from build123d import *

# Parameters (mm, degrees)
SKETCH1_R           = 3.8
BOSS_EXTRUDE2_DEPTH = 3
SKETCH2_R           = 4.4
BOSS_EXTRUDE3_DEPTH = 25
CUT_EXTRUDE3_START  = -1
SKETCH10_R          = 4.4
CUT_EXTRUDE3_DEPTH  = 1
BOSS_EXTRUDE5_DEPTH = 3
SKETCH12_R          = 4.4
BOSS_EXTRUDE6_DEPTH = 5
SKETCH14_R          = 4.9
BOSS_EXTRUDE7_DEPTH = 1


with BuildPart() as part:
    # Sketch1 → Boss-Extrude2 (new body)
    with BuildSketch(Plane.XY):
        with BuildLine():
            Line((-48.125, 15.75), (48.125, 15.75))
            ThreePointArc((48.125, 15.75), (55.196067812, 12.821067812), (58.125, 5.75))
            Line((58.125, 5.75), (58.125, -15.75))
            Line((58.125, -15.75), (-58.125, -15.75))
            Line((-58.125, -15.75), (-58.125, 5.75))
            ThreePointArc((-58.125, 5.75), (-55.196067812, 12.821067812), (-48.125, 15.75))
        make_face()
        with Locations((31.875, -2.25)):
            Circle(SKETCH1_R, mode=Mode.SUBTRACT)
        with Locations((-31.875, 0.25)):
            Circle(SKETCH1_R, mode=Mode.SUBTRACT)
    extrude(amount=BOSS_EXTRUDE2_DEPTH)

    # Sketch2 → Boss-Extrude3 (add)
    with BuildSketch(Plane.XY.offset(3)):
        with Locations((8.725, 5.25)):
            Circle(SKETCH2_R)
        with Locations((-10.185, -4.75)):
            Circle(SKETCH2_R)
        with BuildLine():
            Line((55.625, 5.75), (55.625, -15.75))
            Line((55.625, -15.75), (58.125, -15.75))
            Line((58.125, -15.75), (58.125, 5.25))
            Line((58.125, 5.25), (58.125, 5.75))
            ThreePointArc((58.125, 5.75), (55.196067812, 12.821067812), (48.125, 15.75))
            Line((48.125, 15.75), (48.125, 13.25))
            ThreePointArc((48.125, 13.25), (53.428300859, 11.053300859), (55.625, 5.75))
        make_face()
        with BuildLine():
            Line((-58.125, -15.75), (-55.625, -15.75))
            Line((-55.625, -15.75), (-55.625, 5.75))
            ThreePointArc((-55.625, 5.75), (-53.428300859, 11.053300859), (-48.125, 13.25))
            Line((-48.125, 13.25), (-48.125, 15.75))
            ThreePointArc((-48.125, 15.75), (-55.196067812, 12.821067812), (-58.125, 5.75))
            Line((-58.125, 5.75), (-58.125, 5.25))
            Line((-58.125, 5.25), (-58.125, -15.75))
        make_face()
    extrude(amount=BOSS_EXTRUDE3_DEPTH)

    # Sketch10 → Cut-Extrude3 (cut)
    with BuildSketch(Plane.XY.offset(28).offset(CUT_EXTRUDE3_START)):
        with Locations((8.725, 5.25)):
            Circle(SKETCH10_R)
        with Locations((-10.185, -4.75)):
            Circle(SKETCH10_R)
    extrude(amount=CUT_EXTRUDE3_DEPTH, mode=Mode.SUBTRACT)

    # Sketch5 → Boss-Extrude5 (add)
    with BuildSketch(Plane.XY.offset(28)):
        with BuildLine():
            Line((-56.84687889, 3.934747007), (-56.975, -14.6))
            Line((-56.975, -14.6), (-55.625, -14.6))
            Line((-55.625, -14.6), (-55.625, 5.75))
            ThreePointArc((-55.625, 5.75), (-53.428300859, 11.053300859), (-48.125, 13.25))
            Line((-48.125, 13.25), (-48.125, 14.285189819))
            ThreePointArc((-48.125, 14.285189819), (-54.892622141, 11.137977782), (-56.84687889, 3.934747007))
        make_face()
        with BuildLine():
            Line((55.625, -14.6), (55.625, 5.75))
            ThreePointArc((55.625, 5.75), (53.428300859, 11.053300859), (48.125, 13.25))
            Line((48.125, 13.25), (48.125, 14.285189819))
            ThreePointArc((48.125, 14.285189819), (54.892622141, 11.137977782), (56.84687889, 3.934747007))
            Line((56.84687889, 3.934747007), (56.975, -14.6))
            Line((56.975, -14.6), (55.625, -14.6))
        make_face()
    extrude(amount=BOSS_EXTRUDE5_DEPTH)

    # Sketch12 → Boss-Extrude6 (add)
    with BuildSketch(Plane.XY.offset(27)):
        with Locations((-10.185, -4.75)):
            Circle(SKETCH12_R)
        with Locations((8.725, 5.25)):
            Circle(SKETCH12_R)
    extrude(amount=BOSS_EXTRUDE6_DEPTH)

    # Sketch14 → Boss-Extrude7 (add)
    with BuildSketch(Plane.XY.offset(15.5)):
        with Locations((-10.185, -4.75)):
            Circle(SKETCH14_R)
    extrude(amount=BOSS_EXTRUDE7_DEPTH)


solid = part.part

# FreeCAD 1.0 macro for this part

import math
import FreeCAD as App
import Part
import Sketcher

V = App.Vector
Q = App.Units.Quantity

doc = App.newDocument("Part")
params = doc.addObject("Spreadsheet::Sheet", "Params")
for row, (alias, value) in enumerate([
    ("sketch1_radius", "10 mm"),
    ("sketch1_diameter", "7.6 mm"),
    ("sketch1_height", "21.5 mm"),
    ("sketch1_width", "96.25 mm"),
    ("pad1_length", "3 mm"),
    ("sketch2_radius", "10 mm"),
    ("sketch2_diameter", "8.8 mm"),
    ("sketch2_radius2", "7.5 mm"),
    ("sketch2_height", "21.5 mm"),
    ("pad2_length", "25 mm"),
    ("sketch3_diameter", "8.8 mm"),
    ("pocket1_length", "1 mm"),
    ("sketch4_radius", "7.5 mm"),
    ("sketch4_radius2", "8.85 mm"),
    ("sketch4_width", "1.35 mm"),
    ("sketch4_height", "20.35 mm"),
    ("pad3_length", "3 mm"),
    ("sketch5_diameter", "8.8 mm"),
    ("pad4_length", "5 mm"),
    ("sketch6_diameter", "9.8 mm"),
    ("pad5_length", "1 mm"),
], start=1):
    params.set(f"A{row}", alias)
    params.set(f"B{row}", "=" + value)
    params.setAlias(f"B{row}", alias)

body = doc.addObject("PartDesign::Body", "Body")

# Sketch on XY plane
sketch1 = body.newObject("Sketcher::SketchObject", "Sketch")
sketch1.AttachmentSupport = (doc.getObject("XY_Plane"), [""])
sketch1.MapMode = "FlatFace"
sketch1.addGeometry(Part.LineSegment(V(48.1, 15.8, 0), V(-48.1, 15.8, 0)), False)
sketch1.addGeometry(Part.ArcOfCircle(Part.Circle(V(-48.1, 5.8, 0), V(0, 0, 1), 10), math.radians(90), math.radians(180)), False)
sketch1.addGeometry(Part.LineSegment(V(-58.1, 5.8, 0), V(-58.1, -15.8, 0)), False)
sketch1.addGeometry(Part.LineSegment(V(-58.1, -15.8, 0), V(58.1, -15.8, 0)), False)
sketch1.addGeometry(Part.LineSegment(V(58.1, -15.8, 0), V(58.1, 5.8, 0)), False)
sketch1.addGeometry(Part.ArcOfCircle(Part.Circle(V(48.1, 5.8, 0), V(0, 0, 1), 10), math.radians(0), math.radians(90)), False)
sketch1.addGeometry(Part.Circle(V(31.9, -2.2, 0), V(0, 0, 1), 3.8), False)
sketch1.addGeometry(Part.Circle(V(-31.9, 0.2, 0), V(0, 0, 1), 3.8), False)
sketch1.addConstraint(Sketcher.Constraint("Tangent", 0, 2, 1, 1))
sketch1.addConstraint(Sketcher.Constraint("Tangent", 1, 2, 2, 1))
sketch1.addConstraint(Sketcher.Constraint("Coincident", 2, 2, 3, 1))
sketch1.addConstraint(Sketcher.Constraint("Coincident", 3, 2, 4, 1))
sketch1.addConstraint(Sketcher.Constraint("Tangent", 4, 2, 5, 1))
sketch1.addConstraint(Sketcher.Constraint("Tangent", 5, 2, 0, 1))
sketch1.addConstraint(Sketcher.Constraint("Horizontal", 0))
sketch1.addConstraint(Sketcher.Constraint("Vertical", 2))
sketch1.addConstraint(Sketcher.Constraint("Horizontal", 3))
sketch1.addConstraint(Sketcher.Constraint("Vertical", 4))
sketch1.addConstraint(Sketcher.Constraint("Equal", 1, 5))
sketch1.addConstraint(Sketcher.Constraint("Equal", 6, 7))
sketch1.addConstraint(Sketcher.Constraint("Radius", 1, Q("10 mm")))
sketch1.addConstraint(Sketcher.Constraint("Diameter", 6, Q("7.6 mm")))
sketch1.addConstraint(Sketcher.Constraint("DistanceY", 2, 2, 2, 1, Q("21.5 mm")))
sketch1.addConstraint(Sketcher.Constraint("DistanceY", 6, 3, 5, 3, Q("8 mm")))
sketch1.addConstraint(Sketcher.Constraint("DistanceX", 1, 3, 6, 3, Q("80 mm")))
sketch1.addConstraint(Sketcher.Constraint("DistanceX", 7, 3, 5, 3, Q("80 mm")))
sketch1.addConstraint(Sketcher.Constraint("DistanceY", 2, 2, 7, 3, Q("16 mm")))
sketch1.addConstraint(Sketcher.Constraint("DistanceX", 0, 2, 0, 1, Q("96.25 mm")))
sketch1.addConstraint(Sketcher.Constraint("DistanceY", -1, 1, 1, 3, Q("5.75 mm")))
sketch1.addConstraint(Sketcher.Constraint("DistanceX", 1, 3, -1, 1, Q("48.125 mm")))
sketch1.setExpression("Constraints[12]", "Params.sketch1_radius")
sketch1.setExpression("Constraints[13]", "Params.sketch1_diameter")
sketch1.setExpression("Constraints[14]", "Params.sketch1_height")
sketch1.setExpression("Constraints[19]", "Params.sketch1_width")
pad1 = body.newObject("PartDesign::Pad", "Pad")
pad1.Profile = sketch1
pad1.setExpression("Length", "Params.pad1_length")

# Sketch on XY plane
sketch2 = body.newObject("Sketcher::SketchObject", "Sketch001")
sketch2.AttachmentSupport = (doc.getObject("XY_Plane"), [""])
sketch2.MapMode = "FlatFace"
sketch2.AttachmentOffset = App.Placement(V(0, 0, 3), App.Rotation())
sketch2.addGeometry(Part.Circle(V(8.7, 5.2, 0), V(0, 0, 1), 4.4), False)
sketch2.addGeometry(Part.Circle(V(-10.2, -4.8, 0), V(0, 0, 1), 4.4), False)
sketch2.addGeometry(Part.LineSegment(V(55.6, 5.8, 0), V(55.6, -15.8, 0)), False)
sketch2.addGeometry(Part.LineSegment(V(55.6, -15.8, 0), V(58.1, -15.8, 0)), False)
sketch2.addGeometry(Part.LineSegment(V(58.1, -15.8, 0), V(58.1, 5.8, 0)), False)
sketch2.addGeometry(Part.ArcOfCircle(Part.Circle(V(48.1, 5.8, 0), V(0, 0, 1), 10), math.radians(0), math.radians(90)), False)
sketch2.addGeometry(Part.LineSegment(V(48.1, 15.8, 0), V(48.1, 13.2, 0)), False)
sketch2.addGeometry(Part.ArcOfCircle(Part.Circle(V(48.1, 5.8, 0), V(0, 0, 1), 7.5), math.radians(0), math.radians(90)), False)
sketch2.addGeometry(Part.LineSegment(V(-58.1, -15.8, 0), V(-55.6, -15.8, 0)), False)
sketch2.addGeometry(Part.LineSegment(V(-55.6, -15.8, 0), V(-55.6, 5.8, 0)), False)
sketch2.addGeometry(Part.ArcOfCircle(Part.Circle(V(-48.1, 5.8, 0), V(0, 0, 1), 7.5), math.radians(90), math.radians(180)), False)
sketch2.addGeometry(Part.LineSegment(V(-48.1, 13.2, 0), V(-48.1, 15.8, 0)), False)
sketch2.addGeometry(Part.ArcOfCircle(Part.Circle(V(-48.1, 5.8, 0), V(0, 0, 1), 10), math.radians(90), math.radians(180)), False)
sketch2.addGeometry(Part.LineSegment(V(-58.1, 5.8, 0), V(-58.1, -15.8, 0)), False)
sketch2.addConstraint(Sketcher.Constraint("Coincident", 2, 2, 3, 1))
sketch2.addConstraint(Sketcher.Constraint("Coincident", 3, 2, 4, 1))
sketch2.addConstraint(Sketcher.Constraint("Tangent", 4, 2, 5, 1))
sketch2.addConstraint(Sketcher.Constraint("Coincident", 5, 2, 6, 1))
sketch2.addConstraint(Sketcher.Constraint("Coincident", 6, 2, 7, 2))
sketch2.addConstraint(Sketcher.Constraint("Tangent", 7, 1, 2, 1))
sketch2.addConstraint(Sketcher.Constraint("Coincident", 8, 2, 9, 1))
sketch2.addConstraint(Sketcher.Constraint("Tangent", 9, 2, 10, 2))
sketch2.addConstraint(Sketcher.Constraint("Coincident", 10, 1, 11, 1))
sketch2.addConstraint(Sketcher.Constraint("Coincident", 11, 2, 12, 1))
sketch2.addConstraint(Sketcher.Constraint("Tangent", 12, 2, 13, 1))
sketch2.addConstraint(Sketcher.Constraint("Coincident", 13, 2, 8, 1))
sketch2.addConstraint(Sketcher.Constraint("Vertical", 2))
sketch2.addConstraint(Sketcher.Constraint("Horizontal", 3))
sketch2.addConstraint(Sketcher.Constraint("Vertical", 4))
sketch2.addConstraint(Sketcher.Constraint("Vertical", 6))
sketch2.addConstraint(Sketcher.Constraint("Horizontal", 8))
sketch2.addConstraint(Sketcher.Constraint("Vertical", 9))
sketch2.addConstraint(Sketcher.Constraint("Vertical", 11))
sketch2.addConstraint(Sketcher.Constraint("Vertical", 13))
sketch2.addConstraint(Sketcher.Constraint("Coincident", 7, 3, 5, 3))
sketch2.addConstraint(Sketcher.Constraint("Coincident", 12, 3, 10, 3))
sketch2.addConstraint(Sketcher.Constraint("Equal", 0, 1))
sketch2.addConstraint(Sketcher.Constraint("Equal", 7, 10))
sketch2.addConstraint(Sketcher.Constraint("Equal", 5, 12))
sketch2.addConstraint(Sketcher.Constraint("Symmetric", 5, 3, 10, 3, -2))
sketch2.addConstraint(Sketcher.Constraint("Horizontal", 3, 2, 8, 2))
sketch2.addConstraint(Sketcher.Constraint("Vertical", 7, 3, 5, 2))
sketch2.addConstraint(Sketcher.Constraint("Vertical", 12, 3, 10, 1))
sketch2.addConstraint(Sketcher.Constraint("Radius", 5, Q("10 mm")))
sketch2.addConstraint(Sketcher.Constraint("Diameter", 0, Q("8.8 mm")))
sketch2.addConstraint(Sketcher.Constraint("Radius", 7, Q("7.5 mm")))
sketch2.addConstraint(Sketcher.Constraint("DistanceY", 2, 2, 2, 1, Q("21.5 mm")))
sketch2.addConstraint(Sketcher.Constraint("DistanceY", 1, 3, 0, 3, Q("10 mm")))
sketch2.addConstraint(Sketcher.Constraint("DistanceY", 2, 2, 0, 3, Q("21 mm")))
sketch2.addConstraint(Sketcher.Constraint("DistanceX", 0, 3, 5, 3, Q("39.4 mm")))
sketch2.addConstraint(Sketcher.Constraint("DistanceY", -1, 1, 0, 3, Q("5.25 mm")))
sketch2.addConstraint(Sketcher.Constraint("DistanceX", 1, 3, 0, 3, Q("18.91 mm")))
sketch2.addConstraint(Sketcher.Constraint("DistanceX", 10, 3, 1, 3, Q("37.94 mm")))
sketch2.setExpression("Constraints[29]", "Params.sketch2_radius")
sketch2.setExpression("Constraints[30]", "Params.sketch2_diameter")
sketch2.setExpression("Constraints[31]", "Params.sketch2_radius2")
sketch2.setExpression("Constraints[32]", "Params.sketch2_height")
pad2 = body.newObject("PartDesign::Pad", "Pad001")
pad2.Profile = sketch2
pad2.setExpression("Length", "Params.pad2_length")

# Sketch on XY plane
sketch3 = body.newObject("Sketcher::SketchObject", "Sketch002")
sketch3.AttachmentSupport = (doc.getObject("XY_Plane"), [""])
sketch3.MapMode = "FlatFace"
sketch3.AttachmentOffset = App.Placement(V(0, 0, 27), App.Rotation())
sketch3.addGeometry(Part.Circle(V(8.7, 5.2, 0), V(0, 0, 1), 4.4), False)
sketch3.addGeometry(Part.Circle(V(-10.2, -4.8, 0), V(0, 0, 1), 4.4), False)
sketch3.addConstraint(Sketcher.Constraint("Equal", 0, 1))
sketch3.addConstraint(Sketcher.Constraint("Diameter", 0, Q("8.8 mm")))
sketch3.addConstraint(Sketcher.Constraint("DistanceY", 1, 3, 0, 3, Q("10 mm")))
sketch3.addConstraint(Sketcher.Constraint("DistanceY", -1, 1, 0, 3, Q("5.25 mm")))
sketch3.addConstraint(Sketcher.Constraint("DistanceX", 1, 3, 0, 3, Q("18.91 mm")))
sketch3.addConstraint(Sketcher.Constraint("DistanceX", -1, 1, 0, 3, Q("8.725 mm")))
sketch3.setExpression("Constraints[1]", "Params.sketch3_diameter")
pocket1 = body.newObject("PartDesign::Pocket", "Pocket")
pocket1.Profile = sketch3
pocket1.setExpression("Length", "Params.pocket1_length")
pocket1.Reversed = True

# Sketch on XY plane
sketch4 = body.newObject("Sketcher::SketchObject", "Sketch003")
sketch4.AttachmentSupport = (doc.getObject("XY_Plane"), [""])
sketch4.MapMode = "FlatFace"
sketch4.AttachmentOffset = App.Placement(V(0, 0, 28), App.Rotation())
sketch4.addGeometry(Part.LineSegment(V(-56.8, 3.9, 0), V(-57, -14.6, 0)), False)
sketch4.addGeometry(Part.LineSegment(V(-57, -14.6, 0), V(-55.6, -14.6, 0)), False)
sketch4.addGeometry(Part.LineSegment(V(-55.6, -14.6, 0), V(-55.6, 5.8, 0)), False)
sketch4.addGeometry(Part.ArcOfCircle(Part.Circle(V(-48.1, 5.8, 0), V(0, 0, 1), 7.5), math.radians(90), math.radians(180)), False)
sketch4.addGeometry(Part.LineSegment(V(-48.1, 13.2, 0), V(-48.1, 14.3, 0)), False)
sketch4.addGeometry(Part.ArcOfCircle(Part.Circle(V(-48.1, 5.4, 0), V(0, 0, 1), 8.9), math.radians(90), math.radians(190)), False)
sketch4.addGeometry(Part.LineSegment(V(55.6, 5.8, 0), V(55.6, -14.6, 0)), False)
sketch4.addGeometry(Part.LineSegment(V(55.6, -14.6, 0), V(57, -14.6, 0)), False)
sketch4.addGeometry(Part.LineSegment(V(57, -14.6, 0), V(56.8, 3.9, 0)), False)
sketch4.addGeometry(Part.ArcOfCircle(Part.Circle(V(48.1, 5.4, 0), V(0, 0, 1), 8.9), math.radians(-10), math.radians(90)), False)
sketch4.addGeometry(Part.LineSegment(V(48.1, 14.3, 0), V(48.1, 13.2, 0)), False)
sketch4.addGeometry(Part.ArcOfCircle(Part.Circle(V(48.1, 5.8, 0), V(0, 0, 1), 7.5), math.radians(0), math.radians(90)), False)
sketch4.addConstraint(Sketcher.Constraint("Coincident", 0, 2, 1, 1))
sketch4.addConstraint(Sketcher.Constraint("Coincident", 1, 2, 2, 1))
sketch4.addConstraint(Sketcher.Constraint("Tangent", 2, 2, 3, 2))
sketch4.addConstraint(Sketcher.Constraint("Coincident", 3, 1, 4, 1))
sketch4.addConstraint(Sketcher.Constraint("Coincident", 4, 2, 5, 1))
sketch4.addConstraint(Sketcher.Constraint("Coincident", 5, 2, 0, 1))
sketch4.addConstraint(Sketcher.Constraint("Coincident", 6, 2, 7, 1))
sketch4.addConstraint(Sketcher.Constraint("Coincident", 7, 2, 8, 1))
sketch4.addConstraint(Sketcher.Constraint("Coincident", 8, 2, 9, 1))
sketch4.addConstraint(Sketcher.Constraint("Coincident", 9, 2, 10, 1))
sketch4.addConstraint(Sketcher.Constraint("Coincident", 10, 2, 11, 2))
sketch4.addConstraint(Sketcher.Constraint("Tangent", 11, 1, 6, 1))
sketch4.addConstraint(Sketcher.Constraint("Horizontal", 1))
sketch4.addConstraint(Sketcher.Constraint("Vertical", 2))
sketch4.addConstraint(Sketcher.Constraint("Vertical", 4))
sketch4.addConstraint(Sketcher.Constraint("Vertical", 6))
sketch4.addConstraint(Sketcher.Constraint("Horizontal", 7))
sketch4.addConstraint(Sketcher.Constraint("Vertical", 10))
sketch4.addConstraint(Sketcher.Constraint("Equal", 5, 9))
sketch4.addConstraint(Sketcher.Constraint("Equal", 3, 11))
sketch4.addConstraint(Sketcher.Constraint("Symmetric", 5, 3, 9, 3, -2))
sketch4.addConstraint(Sketcher.Constraint("Symmetric", 3, 3, 11, 3, -2))
sketch4.addConstraint(Sketcher.Constraint("Symmetric", 0, 2, 7, 2, -2))
sketch4.addConstraint(Sketcher.Constraint("Horizontal", 5, 2, 8, 2))
sketch4.addConstraint(Sketcher.Constraint("Vertical", 3, 3, 5, 3))
sketch4.addConstraint(Sketcher.Constraint("Vertical", 5, 3, 3, 1))
sketch4.addConstraint(Sketcher.Constraint("Vertical", 11, 3, 9, 2))
sketch4.addConstraint(Sketcher.Constraint("Radius", 3, Q("7.5 mm")))
sketch4.addConstraint(Sketcher.Constraint("Radius", 5, Q("8.85 mm")))
sketch4.addConstraint(Sketcher.Constraint("DistanceX", 1, 1, 1, 2, Q("1.35 mm")))
sketch4.addConstraint(Sketcher.Constraint("DistanceY", 2, 1, 2, 2, Q("20.35 mm")))
sketch4.addConstraint(Sketcher.Constraint("DistanceY", 0, 2, -1, 1, Q("14.6 mm")))
sketch4.addConstraint(Sketcher.Constraint("DistanceX", 0, 2, 9, 3, Q("105.1 mm")))
sketch4.addConstraint(Sketcher.Constraint("DistanceY", 4, 1, 4, 2, Q("1.03519 mm")))
sketch4.addConstraint(Sketcher.Constraint("Distance", 0, Q("18.53519 mm")))
sketch4.setExpression("Constraints[27]", "Params.sketch4_radius")
sketch4.setExpression("Constraints[28]", "Params.sketch4_radius2")
sketch4.setExpression("Constraints[29]", "Params.sketch4_width")
sketch4.setExpression("Constraints[30]", "Params.sketch4_height")
pad3 = body.newObject("PartDesign::Pad", "Pad002")
pad3.Profile = sketch4
pad3.setExpression("Length", "Params.pad3_length")

# Sketch on XY plane
sketch5 = body.newObject("Sketcher::SketchObject", "Sketch004")
sketch5.AttachmentSupport = (doc.getObject("XY_Plane"), [""])
sketch5.MapMode = "FlatFace"
sketch5.AttachmentOffset = App.Placement(V(0, 0, 27), App.Rotation())
sketch5.addGeometry(Part.Circle(V(-10.2, -4.8, 0), V(0, 0, 1), 4.4), False)
sketch5.addGeometry(Part.Circle(V(8.7, 5.2, 0), V(0, 0, 1), 4.4), False)
sketch5.addConstraint(Sketcher.Constraint("Equal", 0, 1))
sketch5.addConstraint(Sketcher.Constraint("Diameter", 0, Q("8.8 mm")))
sketch5.addConstraint(Sketcher.Constraint("DistanceY", 0, 3, 1, 3, Q("10 mm")))
sketch5.addConstraint(Sketcher.Constraint("DistanceY", 0, 3, -1, 1, Q("4.75 mm")))
sketch5.addConstraint(Sketcher.Constraint("DistanceX", 0, 3, 1, 3, Q("18.91 mm")))
sketch5.addConstraint(Sketcher.Constraint("DistanceX", 0, 3, -1, 1, Q("10.185 mm")))
sketch5.setExpression("Constraints[1]", "Params.sketch5_diameter")
pad4 = body.newObject("PartDesign::Pad", "Pad003")
pad4.Profile = sketch5
pad4.setExpression("Length", "Params.pad4_length")

# Sketch on XY plane
sketch6 = body.newObject("Sketcher::SketchObject", "Sketch005")
sketch6.AttachmentSupport = (doc.getObject("XY_Plane"), [""])
sketch6.MapMode = "FlatFace"
sketch6.AttachmentOffset = App.Placement(V(0, 0, 15.5), App.Rotation())
sketch6.addGeometry(Part.Circle(V(-10.2, -4.8, 0), V(0, 0, 1), 4.9), False)
sketch6.addConstraint(Sketcher.Constraint("Diameter", 0, Q("9.8 mm")))
sketch6.addConstraint(Sketcher.Constraint("DistanceY", 0, 3, -1, 1, Q("4.75 mm")))
sketch6.addConstraint(Sketcher.Constraint("DistanceX", 0, 3, -1, 1, Q("10.185 mm")))
sketch6.setExpression("Constraints[0]", "Params.sketch6_diameter")
pad5 = body.newObject("PartDesign::Pad", "Pad004")
pad5.Profile = sketch6
pad5.setExpression("Length", "Params.pad5_length")

doc.recompute()
